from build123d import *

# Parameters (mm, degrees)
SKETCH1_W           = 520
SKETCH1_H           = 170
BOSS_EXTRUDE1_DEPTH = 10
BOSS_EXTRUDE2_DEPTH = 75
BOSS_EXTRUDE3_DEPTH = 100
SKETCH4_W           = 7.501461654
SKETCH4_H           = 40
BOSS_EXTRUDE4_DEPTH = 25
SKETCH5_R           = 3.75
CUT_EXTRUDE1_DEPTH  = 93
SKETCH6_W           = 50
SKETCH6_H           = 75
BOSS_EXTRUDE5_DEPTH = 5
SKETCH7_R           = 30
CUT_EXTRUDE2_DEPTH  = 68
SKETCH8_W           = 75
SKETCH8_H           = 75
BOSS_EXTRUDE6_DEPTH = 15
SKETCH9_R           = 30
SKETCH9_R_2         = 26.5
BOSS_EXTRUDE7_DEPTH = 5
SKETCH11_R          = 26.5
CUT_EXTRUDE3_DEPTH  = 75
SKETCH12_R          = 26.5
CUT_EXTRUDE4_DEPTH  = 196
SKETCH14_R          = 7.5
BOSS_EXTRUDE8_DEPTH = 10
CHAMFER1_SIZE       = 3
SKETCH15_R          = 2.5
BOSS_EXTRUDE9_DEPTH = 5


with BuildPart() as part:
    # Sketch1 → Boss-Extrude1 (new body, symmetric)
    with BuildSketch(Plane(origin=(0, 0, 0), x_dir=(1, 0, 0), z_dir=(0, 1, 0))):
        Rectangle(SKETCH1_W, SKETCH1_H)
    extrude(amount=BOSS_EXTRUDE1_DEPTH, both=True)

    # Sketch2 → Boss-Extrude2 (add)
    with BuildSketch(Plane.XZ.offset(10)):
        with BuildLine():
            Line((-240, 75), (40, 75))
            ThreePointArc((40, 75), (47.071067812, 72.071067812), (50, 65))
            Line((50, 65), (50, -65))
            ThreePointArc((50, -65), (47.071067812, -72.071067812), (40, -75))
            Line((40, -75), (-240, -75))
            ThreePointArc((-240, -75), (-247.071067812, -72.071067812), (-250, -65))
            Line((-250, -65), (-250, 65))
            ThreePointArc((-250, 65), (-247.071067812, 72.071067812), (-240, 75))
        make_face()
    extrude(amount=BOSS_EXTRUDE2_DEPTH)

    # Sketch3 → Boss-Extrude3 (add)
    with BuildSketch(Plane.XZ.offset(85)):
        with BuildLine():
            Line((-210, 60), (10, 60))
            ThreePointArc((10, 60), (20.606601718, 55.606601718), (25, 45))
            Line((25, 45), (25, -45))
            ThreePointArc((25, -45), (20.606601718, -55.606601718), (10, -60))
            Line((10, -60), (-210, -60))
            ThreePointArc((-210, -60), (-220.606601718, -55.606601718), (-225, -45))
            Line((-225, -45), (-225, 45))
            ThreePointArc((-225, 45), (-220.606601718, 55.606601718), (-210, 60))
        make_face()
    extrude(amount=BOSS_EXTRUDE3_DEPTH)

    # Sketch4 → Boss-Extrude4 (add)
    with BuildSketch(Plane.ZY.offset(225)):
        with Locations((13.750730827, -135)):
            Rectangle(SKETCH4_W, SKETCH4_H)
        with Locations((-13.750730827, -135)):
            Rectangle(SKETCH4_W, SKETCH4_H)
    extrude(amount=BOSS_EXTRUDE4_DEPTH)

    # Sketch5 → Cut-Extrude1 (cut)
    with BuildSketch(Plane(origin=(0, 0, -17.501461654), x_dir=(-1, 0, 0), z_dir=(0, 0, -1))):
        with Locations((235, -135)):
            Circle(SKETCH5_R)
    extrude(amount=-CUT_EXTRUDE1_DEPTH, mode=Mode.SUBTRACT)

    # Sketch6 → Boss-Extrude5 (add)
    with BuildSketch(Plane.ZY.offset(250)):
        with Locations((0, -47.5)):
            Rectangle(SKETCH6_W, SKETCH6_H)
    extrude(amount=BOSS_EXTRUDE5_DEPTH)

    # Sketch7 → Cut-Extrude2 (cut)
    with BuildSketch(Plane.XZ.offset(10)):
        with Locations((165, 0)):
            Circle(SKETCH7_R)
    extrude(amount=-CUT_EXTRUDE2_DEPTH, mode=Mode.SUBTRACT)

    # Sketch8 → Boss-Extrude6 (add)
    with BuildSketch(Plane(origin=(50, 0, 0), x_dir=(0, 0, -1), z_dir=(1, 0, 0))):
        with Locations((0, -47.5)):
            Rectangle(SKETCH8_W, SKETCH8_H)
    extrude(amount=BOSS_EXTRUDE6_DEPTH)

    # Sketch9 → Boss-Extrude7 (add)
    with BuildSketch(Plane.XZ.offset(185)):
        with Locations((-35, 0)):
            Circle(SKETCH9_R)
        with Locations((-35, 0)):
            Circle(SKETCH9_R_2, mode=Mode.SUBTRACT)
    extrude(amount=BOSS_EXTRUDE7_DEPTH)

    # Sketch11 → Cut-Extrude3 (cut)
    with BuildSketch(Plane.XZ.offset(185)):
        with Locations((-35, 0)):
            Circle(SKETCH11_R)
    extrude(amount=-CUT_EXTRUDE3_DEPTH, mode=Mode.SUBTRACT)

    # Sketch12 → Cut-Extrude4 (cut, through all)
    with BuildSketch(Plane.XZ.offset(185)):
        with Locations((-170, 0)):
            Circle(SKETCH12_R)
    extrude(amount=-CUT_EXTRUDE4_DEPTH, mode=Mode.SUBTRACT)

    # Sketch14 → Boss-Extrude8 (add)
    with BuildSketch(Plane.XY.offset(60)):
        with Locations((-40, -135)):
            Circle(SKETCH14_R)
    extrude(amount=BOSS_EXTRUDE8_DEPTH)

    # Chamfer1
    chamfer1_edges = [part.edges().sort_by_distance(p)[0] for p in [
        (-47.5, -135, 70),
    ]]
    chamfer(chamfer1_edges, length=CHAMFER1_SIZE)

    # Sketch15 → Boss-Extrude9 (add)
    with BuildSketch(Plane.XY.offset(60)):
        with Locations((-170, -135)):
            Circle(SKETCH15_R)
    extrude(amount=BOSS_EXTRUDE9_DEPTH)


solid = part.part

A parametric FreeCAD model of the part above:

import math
import FreeCAD as App
import Part
import Sketcher


def edges_at(feature, points):
    """Names of the edges that pass closest to the given points."""
    edges = feature.Shape.Edges
    near = lambda p: min(range(len(edges)), key=lambda i: edges[i].distToShape(Part.Vertex(*p))[0])
    return sorted({f"Edge{near(p) + 1}" for p in points})

doc = App.newDocument("Part")
body = doc.addObject("PartDesign::Body", "Body")

sketch1 = body.newObject("Sketcher::SketchObject", "Sketch")
sketch1.AttachmentSupport = (doc.getObject("XZ_Plane"), [""])
sketch1.MapMode = "FlatFace"
sketch1.addGeometry([
    Part.LineSegment(App.Vector(-260, -85, 0), App.Vector(-260, 85, 0)),
    Part.LineSegment(App.Vector(-260, 85, 0), App.Vector(260, 85, 0)),
    Part.LineSegment(App.Vector(260, 85, 0), App.Vector(260, -85, 0)),
    Part.LineSegment(App.Vector(260, -85, 0), App.Vector(-260, -85, 0)),
], False)
sketch1.addConstraint([
    Sketcher.Constraint("Coincident", 0, 2, 1, 1),
    Sketcher.Constraint("Coincident", 1, 2, 2, 1),
    Sketcher.Constraint("Coincident", 2, 2, 3, 1),
    Sketcher.Constraint("Coincident", 3, 2, 0, 1),
    Sketcher.Constraint("Vertical", 0),
    Sketcher.Constraint("Horizontal", 1),
    Sketcher.Constraint("Vertical", 2),
    Sketcher.Constraint("Horizontal", 3),
    Sketcher.Constraint("Symmetric", 0, 2, 2, 2, -1, 1),
    Sketcher.Constraint("DistanceX", 1, 1, 1, 2, 520.0),
    Sketcher.Constraint("DistanceY", 0, 1, 0, 2, 170.0),
])
pad1 = body.newObject("PartDesign::Pad", "Pad")
pad1.Profile = sketch1
pad1.Length = 20
pad1.Midplane = True

sketch2 = body.newObject("Sketcher::SketchObject", "Sketch001")
sketch2.AttachmentSupport = (doc.getObject("XZ_Plane"), [""])
sketch2.MapMode = "FlatFace"
sketch2.AttachmentOffset = App.Placement(App.Vector(0, 0, 10), App.Rotation())
sketch2.addGeometry([
    Part.LineSegment(App.Vector(40, 75, 0), App.Vector(-240, 75, 0)),
    Part.ArcOfCircle(Part.Circle(App.Vector(-240, 65, 0), App.Vector(0, 0, 1), 10), math.radians(90), math.radians(180)),
    Part.LineSegment(App.Vector(-250, 65, 0), App.Vector(-250, -65, 0)),
    Part.ArcOfCircle(Part.Circle(App.Vector(-240, -65, 0), App.Vector(0, 0, 1), 10), math.radians(180), math.radians(270)),
    Part.LineSegment(App.Vector(-240, -75, 0), App.Vector(40, -75, 0)),
    Part.ArcOfCircle(Part.Circle(App.Vector(40, -65, 0), App.Vector(0, 0, 1), 10), math.radians(-90), math.radians(0)),
    Part.LineSegment(App.Vector(50, -65, 0), App.Vector(50, 65, 0)),
    Part.ArcOfCircle(Part.Circle(App.Vector(40, 65, 0), App.Vector(0, 0, 1), 10), math.radians(0), math.radians(90)),
], False)
sketch2.addConstraint([
    Sketcher.Constraint("Tangent", 0, 2, 1, 1),
    Sketcher.Constraint("Tangent", 1, 2, 2, 1),
    Sketcher.Constraint("Tangent", 2, 2, 3, 1),
    Sketcher.Constraint("Tangent", 3, 2, 4, 1),
    Sketcher.Constraint("Tangent", 4, 2, 5, 1),
    Sketcher.Constraint("Tangent", 5, 2, 6, 1),
    Sketcher.Constraint("Tangent", 6, 2, 7, 1),
    Sketcher.Constraint("Tangent", 7, 2, 0, 1),
    Sketcher.Constraint("Horizontal", 0),
    Sketcher.Constraint("Vertical", 2),
    Sketcher.Constraint("Horizontal", 4),
    Sketcher.Constraint("Vertical", 6),
    Sketcher.Constraint("Equal", 1, 3),
    Sketcher.Constraint("Equal", 3, 5),
    Sketcher.Constraint("Equal", 5, 7),
    Sketcher.Constraint("Radius", 1, 10.0),
    Sketcher.Constraint("DistanceX", 0, 2, 0, 1, 280.0),
    Sketcher.Constraint("DistanceY", 2, 2, 2, 1, 130.0),
    Sketcher.Constraint("DistanceX", 1, 3, -1, 1, 240.0),
    Sketcher.Constraint("DistanceY", -1, 1, 1, 3, 65.0),
])
pad2 = body.newObject("PartDesign::Pad", "Pad001")
pad2.Profile = sketch2
pad2.Length = 75

sketch3 = body.newObject("Sketcher::SketchObject", "Sketch002")
sketch3.AttachmentSupport = (doc.getObject("XZ_Plane"), [""])
sketch3.MapMode = "FlatFace"
sketch3.AttachmentOffset = App.Placement(App.Vector(0, 0, 85), App.Rotation())
sketch3.addGeometry([
    Part.LineSegment(App.Vector(10, 60, 0), App.Vector(-210, 60, 0)),
    Part.ArcOfCircle(Part.Circle(App.Vector(-210, 45, 0), App.Vector(0, 0, 1), 15), math.radians(90), math.radians(180)),
    Part.LineSegment(App.Vector(-225, 45, 0), App.Vector(-225, -45, 0)),
    Part.ArcOfCircle(Part.Circle(App.Vector(-210, -45, 0), App.Vector(0, 0, 1), 15), math.radians(180), math.radians(270)),
    Part.LineSegment(App.Vector(-210, -60, 0), App.Vector(10, -60, 0)),
    Part.ArcOfCircle(Part.Circle(App.Vector(10, -45, 0), App.Vector(0, 0, 1), 15), math.radians(-90), math.radians(0)),
    Part.LineSegment(App.Vector(25, -45, 0), App.Vector(25, 45, 0)),
    Part.ArcOfCircle(Part.Circle(App.Vector(10, 45, 0), App.Vector(0, 0, 1), 15), math.radians(0), math.radians(90)),
], False)
sketch3.addConstraint([
    Sketcher.Constraint("Tangent", 0, 2, 1, 1),
    Sketcher.Constraint("Tangent", 1, 2, 2, 1),
    Sketcher.Constraint("Tangent", 2, 2, 3, 1),
    Sketcher.Constraint("Tangent", 3, 2, 4, 1),
    Sketcher.Constraint("Tangent", 4, 2, 5, 1),
    Sketcher.Constraint("Tangent", 5, 2, 6, 1),
    Sketcher.Constraint("Tangent", 6, 2, 7, 1),
    Sketcher.Constraint("Tangent", 7, 2, 0, 1),
    Sketcher.Constraint("Horizontal", 0),
    Sketcher.Constraint("Vertical", 2),
    Sketcher.Constraint("Horizontal", 4),
    Sketcher.Constraint("Vertical", 6),
    Sketcher.Constraint("Equal", 1, 3),
    Sketcher.Constraint("Equal", 3, 5),
    Sketcher.Constraint("Equal", 5, 7),
    Sketcher.Constraint("Radius", 1, 15.0),
    Sketcher.Constraint("DistanceX", 0, 2, 0, 1, 220.0),
    Sketcher.Constraint("DistanceY", 2, 2, 2, 1, 90.0),
    Sketcher.Constraint("DistanceX", 1, 3, -1, 1, 210.0),
    Sketcher.Constraint("DistanceY", -1, 1, 1, 3, 45.0),
])
pad3 = body.newObject("PartDesign::Pad", "Pad002")
pad3.Profile = sketch3
pad3.Length = 100

sketch4 = body.newObject("Sketcher::SketchObject", "Sketch003")
sketch4.AttachmentSupport = (doc.getObject("YZ_Plane"), [""])
sketch4.MapMode = "FlatFace"
sketch4.AttachmentOffset = App.Placement(App.Vector(0, 0, -225), App.Rotation())
sketch4.addGeometry([
    Part.LineSegment(App.Vector(-115, 10, 0), App.Vector(-155, 10, 0)),
    Part.LineSegment(App.Vector(-155, 10, 0), App.Vector(-155, 17.501462, 0)),
    Part.LineSegment(App.Vector(-155, 17.501462, 0), App.Vector(-115, 17.501462, 0)),
    Part.LineSegment(App.Vector(-115, 17.501462, 0), App.Vector(-115, 10, 0)),
    Part.LineSegment(App.Vector(-115, -17.501462, 0), App.Vector(-155, -17.501462, 0)),
    Part.LineSegment(App.Vector(-155, -17.501462, 0), App.Vector(-155, -10, 0)),
    Part.LineSegment(App.Vector(-155, -10, 0), App.Vector(-115, -10, 0)),
    Part.LineSegment(App.Vector(-115, -10, 0), App.Vector(-115, -17.501462, 0)),
], False)
sketch4.addConstraint([
    Sketcher.Constraint("Coincident", 0, 2, 1, 1),
    Sketcher.Constraint("Coincident", 1, 2, 2, 1),
    Sketcher.Constraint("Coincident", 2, 2, 3, 1),
    Sketcher.Constraint("Coincident", 3, 2, 0, 1),
    Sketcher.Constraint("Coincident", 4, 2, 5, 1),
    Sketcher.Constraint("Coincident", 5, 2, 6, 1),
    Sketcher.Constraint("Coincident", 6, 2, 7, 1),
    Sketcher.Constraint("Coincident", 7, 2, 4, 1),
    Sketcher.Constraint("Horizontal", 0),
    Sketcher.Constraint("Vertical", 1),
    Sketcher.Constraint("Horizontal", 2),
    Sketcher.Constraint("Vertical", 3),
    Sketcher.Constraint("Horizontal", 4),
    Sketcher.Constraint("Vertical", 5),
    Sketcher.Constraint("Horizontal", 6),
    Sketcher.Constraint("Vertical", 7),
    Sketcher.Constraint("Symmetric", 1, 2, 4, 2, -1),
    Sketcher.Constraint("Symmetric", 3, 2, 6, 2, -1),
    Sketcher.Constraint("DistanceX", 0, 2, 0, 1, 40.0),
    Sketcher.Constraint("DistanceX", 0, 2, -1, 1, 155.0),
    Sketcher.Constraint("DistanceY", -1, 1, 0, 2, 10.0),
    Sketcher.Constraint("DistanceY", 1, 1, 1, 2, 7.501462),
])
pad4 = body.newObject("PartDesign::Pad", "Pad003")
pad4.Profile = sketch4
pad4.Length = 25
pad4.Reversed = True

sketch5 = body.newObject("Sketcher::SketchObject", "Sketch004")
sketch5.AttachmentSupport = (doc.getObject("XY_Plane"), [""])
sketch5.MapMode = "FlatFace"
sketch5.AttachmentOffset = App.Placement(App.Vector(0, 0, -17.501462), App.Rotation())
sketch5.addGeometry(Part.Circle(App.Vector(-235, -135, 0), App.Vector(0, 0, 1), 3.75), False)
sketch5.addConstraint([
    Sketcher.Constraint("Diameter", 0, 7.5),
    Sketcher.Constraint("DistanceX", 0, 3, -1, 1, 235.0),
    Sketcher.Constraint("DistanceY", 0, 3, -1, 1, 135.0),
])
pocket1 = body.newObject("PartDesign::Pocket", "Pocket")
pocket1.Profile = sketch5
pocket1.Length = 93
pocket1.Reversed = True

sketch6 = body.newObject("Sketcher::SketchObject", "Sketch005")
sketch6.AttachmentSupport = (doc.getObject("YZ_Plane"), [""])
sketch6.MapMode = "FlatFace"
sketch6.AttachmentOffset = App.Placement(App.Vector(0, 0, -250), App.Rotation())
sketch6.addGeometry([
    Part.LineSegment(App.Vector(-10, -25, 0), App.Vector(-85, -25, 0)),
    Part.LineSegment(App.Vector(-85, -25, 0), App.Vector(-85, 25, 0)),
    Part.LineSegment(App.Vector(-85, 25, 0), App.Vector(-10, 25, 0)),
    Part.LineSegment(App.Vector(-10, 25, 0), App.Vector(-10, -25, 0)),
], False)
sketch6.addConstraint([
    Sketcher.Constraint("Coincident", 0, 2, 1, 1),
    Sketcher.Constraint("Coincident", 1, 2, 2, 1),
    Sketcher.Constraint("Coincident", 2, 2, 3, 1),
    Sketcher.Constraint("Coincident", 3, 2, 0, 1),
    Sketcher.Constraint("Horizontal", 0),
    Sketcher.Constraint("Vertical", 1),
    Sketcher.Constraint("Horizontal", 2),
    Sketcher.Constraint("Vertical", 3),
    Sketcher.Constraint("DistanceX", 0, 2, 0, 1, 75.0),
    Sketcher.Constraint("DistanceY", 1, 1, 1, 2, 50.0),
    Sketcher.Constraint("DistanceX", 0, 2, -1, 1, 85.0),
    Sketcher.Constraint("DistanceY", 0, 2, -1, 1, 25.0),
])
pad5 = body.newObject("PartDesign::Pad", "Pad004")
pad5.Profile = sketch6
pad5.Length = 5
pad5.Reversed = True

sketch7 = body.newObject("Sketcher::SketchObject", "Sketch006")
sketch7.AttachmentSupport = (doc.getObject("XZ_Plane"), [""])
sketch7.MapMode = "FlatFace"
sketch7.AttachmentOffset = App.Placement(App.Vector(0, 0, 10), App.Rotation())
sketch7.addGeometry(Part.Circle(App.Vector(165, 0, 0), App.Vector(0, 0, 1), 30), False)
sketch7.addConstraint([
    Sketcher.Constraint("PointOnObject", 0, 3, -1),
    Sketcher.Constraint("Diameter", 0, 60.0),
    Sketcher.Constraint("DistanceX", -1, 1, 0, 3, 165.0),
])
pocket2 = body.newObject("PartDesign::Pocket", "Pocket001")
pocket2.Profile = sketch7
pocket2.Length = 68

sketch8 = body.newObject("Sketcher::SketchObject", "Sketch007")
sketch8.AttachmentSupport = (doc.getObject("YZ_Plane"), [""])
sketch8.MapMode = "FlatFace"
sketch8.AttachmentOffset = App.Placement(App.Vector(0, 0, 50), App.Rotation())
sketch8.addGeometry([
    Part.LineSegment(App.Vector(-10, 37.5, 0), App.Vector(-85, 37.5, 0)),
    Part.LineSegment(App.Vector(-85, 37.5, 0), App.Vector(-85, -37.5, 0)),
    Part.LineSegment(App.Vector(-85, -37.5, 0), App.Vector(-10, -37.5, 0)),
    Part.LineSegment(App.Vector(-10, -37.5, 0), App.Vector(-10, 37.5, 0)),
], False)
sketch8.addConstraint([
    Sketcher.Constraint("Coincident", 0, 2, 1, 1),
    Sketcher.Constraint("Coincident", 1, 2, 2, 1),
    Sketcher.Constraint("Coincident", 2, 2, 3, 1),
    Sketcher.Constraint("Coincident", 3, 2, 0, 1),
    Sketcher.Constraint("Horizontal", 0),
    Sketcher.Constraint("Vertical", 1),
    Sketcher.Constraint("Horizontal", 2),
    Sketcher.Constraint("Vertical", 3),
    Sketcher.Constraint("Equal", 2, 1),
    Sketcher.Constraint("DistanceX", 0, 2, 0, 1, 75.0),
    Sketcher.Constraint("DistanceX", 0, 2, -1, 1, 85.0),
    Sketcher.Constraint("DistanceY", -1, 1, 0, 2, 37.5),
])
pad6 = body.newObject("PartDesign::Pad", "Pad005")
pad6.Profile = sketch8
pad6.Length = 15

sketch9 = body.newObject("Sketcher::SketchObject", "Sketch008")
sketch9.AttachmentSupport = (doc.getObject("XZ_Plane"), [""])
sketch9.MapMode = "FlatFace"
sketch9.AttachmentOffset = App.Placement(App.Vector(0, 0, 185), App.Rotation())
sketch9.addGeometry([
    Part.Circle(App.Vector(-35, 0, 0), App.Vector(0, 0, 1), 30),
    Part.Circle(App.Vector(-35, 0, 0), App.Vector(0, 0, 1), 26.5),
], False)
sketch9.addConstraint([
    Sketcher.Constraint("Coincident", 1, 3, 0, 3),
    Sketcher.Constraint("PointOnObject", 0, 3, -1),
    Sketcher.Constraint("Diameter", 0, 60.0),
    Sketcher.Constraint("Diameter", 1, 53.0),
    Sketcher.Constraint("DistanceX", 0, 3, -1, 1, 35.0),
])
pad7 = body.newObject("PartDesign::Pad", "Pad006")
pad7.Profile = sketch9
pad7.Length = 5

sketch10 = body.newObject("Sketcher::SketchObject", "Sketch009")
sketch10.AttachmentSupport = (doc.getObject("XZ_Plane"), [""])
sketch10.MapMode = "FlatFace"
sketch10.AttachmentOffset = App.Placement(App.Vector(0, 0, 185), App.Rotation())
sketch10.addGeometry(Part.Circle(App.Vector(-35, 0, 0), App.Vector(0, 0, 1), 26.5), False)
sketch10.addConstraint([
    Sketcher.Constraint("PointOnObject", 0, 3, -1),
    Sketcher.Constraint("Diameter", 0, 53.0),
    Sketcher.Constraint("DistanceX", 0, 3, -1, 1, 35.0),
])
pocket3 = body.newObject("PartDesign::Pocket", "Pocket002")
pocket3.Profile = sketch10
pocket3.Length = 75

sketch11 = body.newObject("Sketcher::SketchObject", "Sketch010")
sketch11.AttachmentSupport = (doc.getObject("XZ_Plane"), [""])
sketch11.MapMode = "FlatFace"
sketch11.AttachmentOffset = App.Placement(App.Vector(0, 0, 185), App.Rotation())
sketch11.addGeometry(Part.Circle(App.Vector(-170, 0, 0), App.Vector(0, 0, 1), 26.5), False)
sketch11.addConstraint([
    Sketcher.Constraint("PointOnObject", 0, 3, -1),
    Sketcher.Constraint("Diameter", 0, 53.0),
    Sketcher.Constraint("DistanceX", 0, 3, -1, 1, 170.0),
])
pocket4 = body.newObject("PartDesign::Pocket", "Pocket003")
pocket4.Profile = sketch11
pocket4.Type = "ThroughAll"

sketch12 = body.newObject("Sketcher::SketchObject", "Sketch011")
sketch12.AttachmentSupport = (doc.getObject("XY_Plane"), [""])
sketch12.MapMode = "FlatFace"
sketch12.AttachmentOffset = App.Placement(App.Vector(0, 0, 60), App.Rotation())
sketch12.addGeometry(Part.Circle(App.Vector(-40, -135, 0), App.Vector(0, 0, 1), 7.5), False)
sketch12.addConstraint([
    Sketcher.Constraint("Diameter", 0, 15.0),
    Sketcher.Constraint("DistanceX", 0, 3, -1, 1, 40.0),
    Sketcher.Constraint("DistanceY", 0, 3, -1, 1, 135.0),
])
pad8 = body.newObject("PartDesign::Pad", "Pad007")
pad8.Profile = sketch12
pad8.Length = 10
doc.recompute()

chamfer = body.newObject("PartDesign::Chamfer", "Chamfer")
chamfer.Base = (pad8, edges_at(pad8, [(-47.5, -135, 70)]))
chamfer.Size = 3

sketch13 = body.newObject("Sketcher::SketchObject", "Sketch012")
sketch13.AttachmentSupport = (doc.getObject("XY_Plane"), [""])
sketch13.MapMode = "FlatFace"
sketch13.AttachmentOffset = App.Placement(App.Vector(0, 0, 60), App.Rotation())
sketch13.addGeometry(Part.Circle(App.Vector(-170, -135, 0), App.Vector(0, 0, 1), 2.5), False)
sketch13.addConstraint([
    Sketcher.Constraint("Diameter", 0, 5.0),
    Sketcher.Constraint("DistanceX", 0, 3, -1, 1, 170.0),
    Sketcher.Constraint("DistanceY", 0, 3, -1, 1, 135.0),
])
pad9 = body.newObject("PartDesign::Pad", "Pad008")
pad9.Profile = sketch13
pad9.Length = 5

doc.recompute()
